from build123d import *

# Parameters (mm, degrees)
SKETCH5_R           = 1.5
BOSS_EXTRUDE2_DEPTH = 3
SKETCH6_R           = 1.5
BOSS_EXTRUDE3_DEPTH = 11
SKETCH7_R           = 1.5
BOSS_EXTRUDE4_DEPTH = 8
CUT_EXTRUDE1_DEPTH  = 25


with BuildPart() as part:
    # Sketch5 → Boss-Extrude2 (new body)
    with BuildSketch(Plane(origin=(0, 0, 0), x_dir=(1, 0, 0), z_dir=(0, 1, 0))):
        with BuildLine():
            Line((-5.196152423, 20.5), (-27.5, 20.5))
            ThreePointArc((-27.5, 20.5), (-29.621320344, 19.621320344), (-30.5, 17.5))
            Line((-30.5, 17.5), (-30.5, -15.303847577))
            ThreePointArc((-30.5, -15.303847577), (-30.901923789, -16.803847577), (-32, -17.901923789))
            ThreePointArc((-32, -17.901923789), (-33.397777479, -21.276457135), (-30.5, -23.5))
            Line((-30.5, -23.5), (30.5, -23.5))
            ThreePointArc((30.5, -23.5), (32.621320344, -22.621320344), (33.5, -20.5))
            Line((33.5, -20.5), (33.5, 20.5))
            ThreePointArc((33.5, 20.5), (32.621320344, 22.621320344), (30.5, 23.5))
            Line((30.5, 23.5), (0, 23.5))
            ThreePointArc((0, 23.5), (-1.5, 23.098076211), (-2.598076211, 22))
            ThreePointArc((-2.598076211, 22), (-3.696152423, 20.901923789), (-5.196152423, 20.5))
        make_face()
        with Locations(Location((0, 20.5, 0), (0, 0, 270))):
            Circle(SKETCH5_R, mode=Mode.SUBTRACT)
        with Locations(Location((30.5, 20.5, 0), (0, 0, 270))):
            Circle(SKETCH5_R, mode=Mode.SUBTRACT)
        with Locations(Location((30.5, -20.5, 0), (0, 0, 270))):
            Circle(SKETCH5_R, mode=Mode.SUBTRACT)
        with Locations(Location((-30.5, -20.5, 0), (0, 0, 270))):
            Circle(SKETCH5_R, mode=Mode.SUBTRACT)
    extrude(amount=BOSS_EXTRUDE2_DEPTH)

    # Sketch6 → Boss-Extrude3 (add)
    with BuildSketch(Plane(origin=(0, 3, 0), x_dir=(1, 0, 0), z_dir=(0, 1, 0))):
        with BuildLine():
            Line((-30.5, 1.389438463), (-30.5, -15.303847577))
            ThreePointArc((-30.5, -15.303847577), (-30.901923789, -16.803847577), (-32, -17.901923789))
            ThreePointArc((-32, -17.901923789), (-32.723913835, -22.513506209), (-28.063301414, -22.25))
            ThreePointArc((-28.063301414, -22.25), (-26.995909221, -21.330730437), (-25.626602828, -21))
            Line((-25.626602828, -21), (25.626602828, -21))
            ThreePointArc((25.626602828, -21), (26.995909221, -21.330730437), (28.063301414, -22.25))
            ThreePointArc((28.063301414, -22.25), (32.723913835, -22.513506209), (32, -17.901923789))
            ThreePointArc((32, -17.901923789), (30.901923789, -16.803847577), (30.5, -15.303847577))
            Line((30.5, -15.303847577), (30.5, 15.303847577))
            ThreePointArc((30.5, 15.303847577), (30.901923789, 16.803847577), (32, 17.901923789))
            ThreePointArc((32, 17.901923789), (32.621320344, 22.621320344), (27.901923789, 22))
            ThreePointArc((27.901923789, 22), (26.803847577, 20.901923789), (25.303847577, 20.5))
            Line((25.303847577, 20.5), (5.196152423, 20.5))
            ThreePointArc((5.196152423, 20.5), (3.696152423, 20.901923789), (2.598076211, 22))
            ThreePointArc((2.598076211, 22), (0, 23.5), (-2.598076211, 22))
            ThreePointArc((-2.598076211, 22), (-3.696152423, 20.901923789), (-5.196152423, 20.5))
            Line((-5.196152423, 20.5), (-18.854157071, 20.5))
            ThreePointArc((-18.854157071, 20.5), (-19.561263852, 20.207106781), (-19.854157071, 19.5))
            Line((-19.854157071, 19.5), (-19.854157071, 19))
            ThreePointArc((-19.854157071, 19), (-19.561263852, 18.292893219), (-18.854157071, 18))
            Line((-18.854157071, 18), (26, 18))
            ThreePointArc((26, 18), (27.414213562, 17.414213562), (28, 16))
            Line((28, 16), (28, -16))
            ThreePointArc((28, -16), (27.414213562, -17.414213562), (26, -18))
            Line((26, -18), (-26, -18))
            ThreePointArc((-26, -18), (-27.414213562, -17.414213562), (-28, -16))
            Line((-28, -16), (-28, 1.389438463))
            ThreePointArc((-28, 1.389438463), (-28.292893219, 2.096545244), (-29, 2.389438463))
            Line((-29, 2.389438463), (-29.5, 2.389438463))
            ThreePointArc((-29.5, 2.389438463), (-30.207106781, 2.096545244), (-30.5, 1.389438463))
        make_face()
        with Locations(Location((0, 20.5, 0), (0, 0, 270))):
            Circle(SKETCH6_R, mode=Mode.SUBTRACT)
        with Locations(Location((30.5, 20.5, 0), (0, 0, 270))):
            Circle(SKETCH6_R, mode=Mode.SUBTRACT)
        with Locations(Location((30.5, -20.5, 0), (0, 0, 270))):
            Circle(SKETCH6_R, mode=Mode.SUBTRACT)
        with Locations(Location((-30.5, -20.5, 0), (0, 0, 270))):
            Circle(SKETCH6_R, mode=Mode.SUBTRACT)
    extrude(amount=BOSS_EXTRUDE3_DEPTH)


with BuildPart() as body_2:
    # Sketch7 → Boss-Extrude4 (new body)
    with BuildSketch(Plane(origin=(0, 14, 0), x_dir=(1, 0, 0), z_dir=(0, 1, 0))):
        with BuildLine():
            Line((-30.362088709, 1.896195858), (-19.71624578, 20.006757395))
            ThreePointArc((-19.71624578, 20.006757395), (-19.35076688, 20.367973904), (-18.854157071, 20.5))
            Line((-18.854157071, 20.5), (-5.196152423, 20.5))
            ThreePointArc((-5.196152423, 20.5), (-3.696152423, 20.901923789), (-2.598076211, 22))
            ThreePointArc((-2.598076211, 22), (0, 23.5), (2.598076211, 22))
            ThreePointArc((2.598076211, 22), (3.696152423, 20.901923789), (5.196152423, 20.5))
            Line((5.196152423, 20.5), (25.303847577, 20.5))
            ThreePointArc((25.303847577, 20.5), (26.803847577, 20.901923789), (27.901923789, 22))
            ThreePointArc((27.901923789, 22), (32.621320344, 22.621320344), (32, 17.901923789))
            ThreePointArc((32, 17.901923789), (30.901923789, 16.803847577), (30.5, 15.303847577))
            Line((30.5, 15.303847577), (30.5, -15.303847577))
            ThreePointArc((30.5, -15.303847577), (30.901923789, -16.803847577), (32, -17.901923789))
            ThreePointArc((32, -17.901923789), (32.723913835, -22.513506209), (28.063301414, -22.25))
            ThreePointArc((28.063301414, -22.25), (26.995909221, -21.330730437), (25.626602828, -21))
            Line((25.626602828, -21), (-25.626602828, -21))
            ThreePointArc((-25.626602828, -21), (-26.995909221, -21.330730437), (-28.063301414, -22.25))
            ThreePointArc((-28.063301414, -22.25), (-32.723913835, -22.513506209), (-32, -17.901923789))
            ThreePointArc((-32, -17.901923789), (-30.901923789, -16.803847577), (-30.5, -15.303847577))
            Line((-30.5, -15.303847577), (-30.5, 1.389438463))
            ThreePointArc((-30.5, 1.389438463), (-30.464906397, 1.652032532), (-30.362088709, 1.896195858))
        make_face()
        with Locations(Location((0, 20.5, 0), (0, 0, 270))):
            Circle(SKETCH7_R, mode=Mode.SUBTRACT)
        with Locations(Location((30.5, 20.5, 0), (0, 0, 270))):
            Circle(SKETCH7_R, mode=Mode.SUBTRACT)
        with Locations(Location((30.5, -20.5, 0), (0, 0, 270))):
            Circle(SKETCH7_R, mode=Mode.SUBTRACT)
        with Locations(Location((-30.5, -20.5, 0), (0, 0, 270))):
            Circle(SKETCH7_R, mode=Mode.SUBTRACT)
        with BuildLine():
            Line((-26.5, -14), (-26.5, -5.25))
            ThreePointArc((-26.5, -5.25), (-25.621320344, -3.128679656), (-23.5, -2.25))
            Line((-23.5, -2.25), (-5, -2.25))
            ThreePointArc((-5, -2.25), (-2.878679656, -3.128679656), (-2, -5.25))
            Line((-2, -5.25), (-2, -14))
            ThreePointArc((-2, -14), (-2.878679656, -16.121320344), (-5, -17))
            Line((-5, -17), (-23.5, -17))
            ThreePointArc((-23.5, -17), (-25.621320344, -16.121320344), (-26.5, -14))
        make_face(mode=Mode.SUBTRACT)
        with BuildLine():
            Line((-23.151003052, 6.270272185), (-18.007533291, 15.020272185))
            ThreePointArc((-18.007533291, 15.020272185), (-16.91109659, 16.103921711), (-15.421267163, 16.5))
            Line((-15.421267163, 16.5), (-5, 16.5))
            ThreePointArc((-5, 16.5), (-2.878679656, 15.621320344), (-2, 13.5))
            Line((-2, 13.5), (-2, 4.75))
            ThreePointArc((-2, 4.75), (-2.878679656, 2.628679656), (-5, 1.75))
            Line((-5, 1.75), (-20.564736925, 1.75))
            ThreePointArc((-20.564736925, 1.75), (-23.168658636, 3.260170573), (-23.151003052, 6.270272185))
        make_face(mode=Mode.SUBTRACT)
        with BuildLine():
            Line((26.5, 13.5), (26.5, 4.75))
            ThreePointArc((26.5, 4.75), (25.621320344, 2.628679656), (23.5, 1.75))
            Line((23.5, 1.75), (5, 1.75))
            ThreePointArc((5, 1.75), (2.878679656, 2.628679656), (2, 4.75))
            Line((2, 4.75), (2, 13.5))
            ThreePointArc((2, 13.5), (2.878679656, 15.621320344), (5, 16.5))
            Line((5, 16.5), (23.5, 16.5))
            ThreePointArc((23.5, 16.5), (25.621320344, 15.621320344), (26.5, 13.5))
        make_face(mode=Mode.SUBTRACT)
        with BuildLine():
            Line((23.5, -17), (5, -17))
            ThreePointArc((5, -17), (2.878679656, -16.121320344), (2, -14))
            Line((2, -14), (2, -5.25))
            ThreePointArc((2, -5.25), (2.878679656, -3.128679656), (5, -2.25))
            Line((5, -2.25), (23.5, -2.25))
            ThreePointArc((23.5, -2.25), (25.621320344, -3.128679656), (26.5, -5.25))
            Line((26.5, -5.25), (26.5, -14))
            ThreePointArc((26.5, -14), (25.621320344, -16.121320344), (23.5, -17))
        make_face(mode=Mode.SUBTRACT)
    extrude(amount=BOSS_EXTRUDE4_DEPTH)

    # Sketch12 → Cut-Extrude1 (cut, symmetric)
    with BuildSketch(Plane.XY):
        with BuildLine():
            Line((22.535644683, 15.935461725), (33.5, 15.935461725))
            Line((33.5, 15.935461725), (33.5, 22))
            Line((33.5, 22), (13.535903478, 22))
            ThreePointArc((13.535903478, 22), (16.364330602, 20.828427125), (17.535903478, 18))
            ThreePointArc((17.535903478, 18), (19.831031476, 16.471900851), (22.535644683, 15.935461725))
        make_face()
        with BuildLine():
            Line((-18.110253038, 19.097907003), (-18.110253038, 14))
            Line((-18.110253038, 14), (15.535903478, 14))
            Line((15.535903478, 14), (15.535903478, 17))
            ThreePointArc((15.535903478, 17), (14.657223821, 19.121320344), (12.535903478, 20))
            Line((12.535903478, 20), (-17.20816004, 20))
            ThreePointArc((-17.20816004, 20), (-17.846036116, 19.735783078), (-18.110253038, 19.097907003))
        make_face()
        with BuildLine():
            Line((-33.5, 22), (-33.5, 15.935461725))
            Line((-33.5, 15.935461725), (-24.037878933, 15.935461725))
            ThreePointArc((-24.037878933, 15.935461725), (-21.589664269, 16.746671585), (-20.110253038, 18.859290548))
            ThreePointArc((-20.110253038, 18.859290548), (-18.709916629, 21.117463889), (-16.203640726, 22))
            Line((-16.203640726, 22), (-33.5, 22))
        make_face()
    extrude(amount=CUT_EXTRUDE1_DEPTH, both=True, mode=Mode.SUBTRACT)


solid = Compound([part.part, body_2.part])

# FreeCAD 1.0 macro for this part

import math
import FreeCAD as App
import Part
import Sketcher

V = App.Vector
Q = App.Units.Quantity

doc = App.newDocument("Part")
body = doc.addObject("PartDesign::Body", "Body")

# Sketch on XZ plane
sketch1 = doc.addObject("Sketcher::SketchObject", "Sketch")
body.addObject(sketch1)
sketch1.AttachmentSupport = (doc.XZ_Plane, [""])
sketch1.MapMode = "FlatFace"
sketch1.addGeometry(Part.LineSegment(V(-5.196152, -20.5, 0), V(-27.5, -20.5, 0)), False)
sketch1.addGeometry(Part.ArcOfCircle(Part.Circle(V(-27.5, -17.5, 0), V(0, 0, 1), 3), math.radians(180), math.radians(270)), False)
sketch1.addGeometry(Part.LineSegment(V(-30.5, -17.5, 0), V(-30.5, 15.303848, 0)), False)
sketch1.addGeometry(Part.ArcOfCircle(Part.Circle(V(-33.5, 15.303848, 0), V(0, 0, 1), 3), math.radians(0), math.radians(60)), False)
sketch1.addGeometry(Part.ArcOfCircle(Part.Circle(V(-30.5, 20.5, 0), V(0, 0, 1), 3), math.radians(90), math.radians(240)), False)
sketch1.addGeometry(Part.LineSegment(V(-30.5, 23.5, 0), V(30.5, 23.5, 0)), False)
sketch1.addGeometry(Part.ArcOfCircle(Part.Circle(V(30.5, 20.5, 0), V(0, 0, 1), 3), math.radians(0), math.radians(90)), False)
sketch1.addGeometry(Part.LineSegment(V(33.5, 20.5, 0), V(33.5, -20.5, 0)), False)
sketch1.addGeometry(Part.ArcOfCircle(Part.Circle(V(30.5, -20.5, 0), V(0, 0, 1), 3), math.radians(-90), math.radians(0)), False)
sketch1.addGeometry(Part.LineSegment(V(30.5, -23.5, 0), V(0, -23.5, 0)), False)
sketch1.addGeometry(Part.ArcOfCircle(Part.Circle(V(0, -20.5, 0), V(0, 0, 1), 3), math.radians(-150), math.radians(-90)), False)
sketch1.addGeometry(Part.ArcOfCircle(Part.Circle(V(-5.196152, -23.5, 0), V(0, 0, 1), 3), math.radians(30), math.radians(90)), False)
sketch1.addGeometry(Part.Circle(V(-30.5, 20.5, 0), V(0, 0, 1), 1.5), False)
sketch1.addGeometry(Part.Circle(V(30.5, 20.5, 0), V(0, 0, 1), 1.5), False)
sketch1.addGeometry(Part.Circle(V(0, -20.5, 0), V(0, 0, 1), 1.5), False)
sketch1.addGeometry(Part.Circle(V(30.5, -20.5, 0), V(0, 0, 1), 1.5), False)
sketch1.addConstraint(Sketcher.Constraint("Tangent", 0, 2, 1, 2))
sketch1.addConstraint(Sketcher.Constraint("Tangent", 1, 1, 2, 1))
sketch1.addConstraint(Sketcher.Constraint("Tangent", 2, 2, 3, 1))
sketch1.addConstraint(Sketcher.Constraint("Tangent", 3, 2, 4, 2))
sketch1.addConstraint(Sketcher.Constraint("Tangent", 4, 1, 5, 1))
sketch1.addConstraint(Sketcher.Constraint("Tangent", 5, 2, 6, 2))
sketch1.addConstraint(Sketcher.Constraint("Tangent", 6, 1, 7, 1))
sketch1.addConstraint(Sketcher.Constraint("Tangent", 7, 2, 8, 2))
sketch1.addConstraint(Sketcher.Constraint("Tangent", 8, 1, 9, 1))
sketch1.addConstraint(Sketcher.Constraint("Tangent", 9, 2, 10, 2))
sketch1.addConstraint(Sketcher.Constraint("Tangent", 10, 1, 11, 1))
sketch1.addConstraint(Sketcher.Constraint("Tangent", 11, 2, 0, 1))
sketch1.addConstraint(Sketcher.Constraint("Horizontal", 0))
sketch1.addConstraint(Sketcher.Constraint("Vertical", 2))
sketch1.addConstraint(Sketcher.Constraint("Horizontal", 5))
sketch1.addConstraint(Sketcher.Constraint("Vertical", 7))
sketch1.addConstraint(Sketcher.Constraint("Horizontal", 9))
sketch1.addConstraint(Sketcher.Constraint("Coincident", 12, 3, 4, 3))
sketch1.addConstraint(Sketcher.Constraint("Coincident", 13, 3, 6, 3))
sketch1.addConstraint(Sketcher.Constraint("Coincident", 14, 3, 10, 3))
sketch1.addConstraint(Sketcher.Constraint("Coincident", 15, 3, 8, 3))
sketch1.addConstraint(Sketcher.Constraint("Equal", 1, 3))
sketch1.addConstraint(Sketcher.Constraint("Equal", 3, 4))
sketch1.addConstraint(Sketcher.Constraint("Equal", 4, 6))
sketch1.addConstraint(Sketcher.Constraint("Equal", 6, 8))
sketch1.addConstraint(Sketcher.Constraint("Equal", 8, 10))
sketch1.addConstraint(Sketcher.Constraint("Equal", 10, 11))
sketch1.addConstraint(Sketcher.Constraint("Equal", 12, 13))
sketch1.addConstraint(Sketcher.Constraint("Equal", 13, 14))
sketch1.addConstraint(Sketcher.Constraint("Equal", 14, 15))
sketch1.addConstraint(Sketcher.Constraint("Symmetric", 4, 3, 8, 3, -1, 1))
sketch1.addConstraint(Sketcher.Constraint("PointOnObject", 10, 3, -2))
sketch1.addConstraint(Sketcher.Constraint("Horizontal", 15, 3, 0, 2))
sketch1.addConstraint(Sketcher.Constraint("Vertical", 12, 3, 1, 1))
sketch1.addConstraint(Sketcher.Constraint("Diameter", 12, Q("3 mm")))
sketch1.addConstraint(Sketcher.Constraint("Radius", 1, Q("3 mm")))
sketch1.addConstraint(Sketcher.Constraint("DistanceX", 5, 1, 5, 2, Q("61 mm")))
sketch1.addConstraint(Sketcher.Constraint("DistanceY", 7, 2, 7, 1, Q("41 mm")))
pad1 = doc.addObject("PartDesign::Pad", "Pad")
body.addObject(pad1)
pad1.Profile = sketch1
pad1.Length = 3
pad1.Reversed = True

# Sketch on XZ plane
sketch2 = doc.addObject("Sketcher::SketchObject", "Sketch001")
body.addObject(sketch2)
sketch2.AttachmentSupport = (doc.XZ_Plane, [""])
sketch2.MapMode = "FlatFace"
sketch2.AttachmentOffset = App.Placement(V(0, 0, -3), App.Rotation())
sketch2.addGeometry(Part.LineSegment(V(-30.5, -1.389438, 0), V(-30.5, 15.303848, 0)), False)
sketch2.addGeometry(Part.ArcOfCircle(Part.Circle(V(-33.5, 15.303848, 0), V(0, 0, 1), 3), math.radians(0), math.radians(60)), False)
sketch2.addGeometry(Part.ArcOfCircle(Part.Circle(V(-30.5, 20.5, 0), V(0, 0, 1), 3), math.radians(35.685335), math.radians(240)), False)
sketch2.addGeometry(Part.ArcOfCircle(Part.Circle(V(-25.626603, 24, 0), V(0, 0, 1), 3), math.radians(-144.314665), math.radians(-90)), False)
sketch2.addGeometry(Part.LineSegment(V(-25.626603, 21, 0), V(25.626603, 21, 0)), False)
sketch2.addGeometry(Part.ArcOfCircle(Part.Circle(V(25.626603, 24, 0), V(0, 0, 1), 3), math.radians(-90), math.radians(-35.685335)), False)
sketch2.addGeometry(Part.ArcOfCircle(Part.Circle(V(30.5, 20.5, 0), V(0, 0, 1), 3), math.radians(-60), math.radians(144.314665)), False)
sketch2.addGeometry(Part.ArcOfCircle(Part.Circle(V(33.5, 15.303848, 0), V(0, 0, 1), 3), math.radians(120), math.radians(180)), False)
sketch2.addGeometry(Part.LineSegment(V(30.5, 15.303848, 0), V(30.5, -15.303848, 0)), False)
sketch2.addGeometry(Part.ArcOfCircle(Part.Circle(V(33.5, -15.303848, 0), V(0, 0, 1), 3), math.radians(-180), math.radians(-120)), False)
sketch2.addGeometry(Part.ArcOfCircle(Part.Circle(V(30.5, -20.5, 0), V(0, 0, 1), 3), math.radians(-150), math.radians(60)), False)
sketch2.addGeometry(Part.ArcOfCircle(Part.Circle(V(25.303848, -23.5, 0), V(0, 0, 1), 3), math.radians(30), math.radians(90)), False)
sketch2.addGeometry(Part.LineSegment(V(25.303848, -20.5, 0), V(5.196152, -20.5, 0)), False)
sketch2.addGeometry(Part.ArcOfCircle(Part.Circle(V(5.196152, -23.5, 0), V(0, 0, 1), 3), math.radians(90), math.radians(150)), False)
sketch2.addGeometry(Part.ArcOfCircle(Part.Circle(V(0, -20.5, 0), V(0, 0, 1), 3), math.radians(-150), math.radians(-30)), False)
sketch2.addGeometry(Part.ArcOfCircle(Part.Circle(V(-5.196152, -23.5, 0), V(0, 0, 1), 3), math.radians(30), math.radians(90)), False)
sketch2.addGeometry(Part.LineSegment(V(-5.196152, -20.5, 0), V(-18.854157, -20.5, 0)), False)
sketch2.addGeometry(Part.ArcOfCircle(Part.Circle(V(-18.854157, -19.5, 0), V(0, 0, 1), 1), math.radians(-180), math.radians(-90)), False)
sketch2.addGeometry(Part.LineSegment(V(-19.854157, -19.5, 0), V(-19.854157, -19, 0)), False)
sketch2.addGeometry(Part.ArcOfCircle(Part.Circle(V(-18.854157, -19, 0), V(0, 0, 1), 1), math.radians(90), math.radians(180)), False)
sketch2.addGeometry(Part.LineSegment(V(-18.854157, -18, 0), V(26, -18, 0)), False)
sketch2.addGeometry(Part.ArcOfCircle(Part.Circle(V(26, -16, 0), V(0, 0, 1), 2), math.radians(-90), math.radians(0)), False)
sketch2.addGeometry(Part.LineSegment(V(28, -16, 0), V(28, 16, 0)), False)
sketch2.addGeometry(Part.ArcOfCircle(Part.Circle(V(26, 16, 0), V(0, 0, 1), 2), math.radians(0), math.radians(90)), False)
sketch2.addGeometry(Part.LineSegment(V(26, 18, 0), V(-26, 18, 0)), False)
sketch2.addGeometry(Part.ArcOfCircle(Part.Circle(V(-26, 16, 0), V(0, 0, 1), 2), math.radians(90), math.radians(180)), False)
sketch2.addGeometry(Part.LineSegment(V(-28, 16, 0), V(-28, -1.389438, 0)), False)
sketch2.addGeometry(Part.ArcOfCircle(Part.Circle(V(-29, -1.389438, 0), V(0, 0, 1), 1), math.radians(-90), math.radians(0)), False)
sketch2.addGeometry(Part.LineSegment(V(-29, -2.389438, 0), V(-29.5, -2.389438, 0)), False)
sketch2.addGeometry(Part.ArcOfCircle(Part.Circle(V(-29.5, -1.389438, 0), V(0, 0, 1), 1), math.radians(-180), math.radians(-90)), False)
sketch2.addGeometry(Part.Circle(V(-30.5, 20.5, 0), V(0, 0, 1), 1.5), False)
sketch2.addGeometry(Part.Circle(V(30.5, 20.5, 0), V(0, 0, 1), 1.5), False)
sketch2.addGeometry(Part.Circle(V(0, -20.5, 0), V(0, 0, 1), 1.5), False)
sketch2.addGeometry(Part.Circle(V(30.5, -20.5, 0), V(0, 0, 1), 1.5), False)
sketch2.addConstraint(Sketcher.Constraint("Tangent", 0, 2, 1, 1))
sketch2.addConstraint(Sketcher.Constraint("Tangent", 1, 2, 2, 2))
sketch2.addConstraint(Sketcher.Constraint("Tangent", 2, 1, 3, 1))
sketch2.addConstraint(Sketcher.Constraint("Tangent", 3, 2, 4, 1))
sketch2.addConstraint(Sketcher.Constraint("Tangent", 4, 2, 5, 1))
sketch2.addConstraint(Sketcher.Constraint("Tangent", 5, 2, 6, 2))
sketch2.addConstraint(Sketcher.Constraint("Tangent", 6, 1, 7, 1))
sketch2.addConstraint(Sketcher.Constraint("Tangent", 7, 2, 8, 1))
sketch2.addConstraint(Sketcher.Constraint("Tangent", 8, 2, 9, 1))
sketch2.addConstraint(Sketcher.Constraint("Tangent", 9, 2, 10, 2))
sketch2.addConstraint(Sketcher.Constraint("Tangent", 10, 1, 11, 1))
sketch2.addConstraint(Sketcher.Constraint("Tangent", 11, 2, 12, 1))
sketch2.addConstraint(Sketcher.Constraint("Tangent", 12, 2, 13, 1))
sketch2.addConstraint(Sketcher.Constraint("Tangent", 13, 2, 14, 2))
sketch2.addConstraint(Sketcher.Constraint("Tangent", 14, 1, 15, 1))
sketch2.addConstraint(Sketcher.Constraint("Tangent", 15, 2, 16, 1))
sketch2.addConstraint(Sketcher.Constraint("Tangent", 16, 2, 17, 2))
sketch2.addConstraint(Sketcher.Constraint("Tangent", 17, 1, 18, 1))
sketch2.addConstraint(Sketcher.Constraint("Tangent", 18, 2, 19, 2))
sketch2.addConstraint(Sketcher.Constraint("Tangent", 19, 1, 20, 1))
sketch2.addConstraint(Sketcher.Constraint("Tangent", 20, 2, 21, 1))
sketch2.addConstraint(Sketcher.Constraint("Tangent", 21, 2, 22, 1))
sketch2.addConstraint(Sketcher.Constraint("Tangent", 22, 2, 23, 1))
sketch2.addConstraint(Sketcher.Constraint("Tangent", 23, 2, 24, 1))
sketch2.addConstraint(Sketcher.Constraint("Tangent", 24, 2, 25, 1))
sketch2.addConstraint(Sketcher.Constraint("Tangent", 25, 2, 26, 1))
sketch2.addConstraint(Sketcher.Constraint("Tangent", 26, 2, 27, 2))
sketch2.addConstraint(Sketcher.Constraint("Tangent", 27, 1, 28, 1))
sketch2.addConstraint(Sketcher.Constraint("Tangent", 28, 2, 29, 2))
sketch2.addConstraint(Sketcher.Constraint("Tangent", 29, 1, 0, 1))
sketch2.addConstraint(Sketcher.Constraint("Vertical", 0))
sketch2.addConstraint(Sketcher.Constraint("Horizontal", 4))
sketch2.addConstraint(Sketcher.Constraint("Vertical", 8))
sketch2.addConstraint(Sketcher.Constraint("Horizontal", 12))
sketch2.addConstraint(Sketcher.Constraint("Horizontal", 16))
sketch2.addConstraint(Sketcher.Constraint("Vertical", 18))
sketch2.addConstraint(Sketcher.Constraint("Horizontal", 20))
sketch2.addConstraint(Sketcher.Constraint("Vertical", 22))
sketch2.addConstraint(Sketcher.Constraint("Horizontal", 24))
sketch2.addConstraint(Sketcher.Constraint("Vertical", 26))
sketch2.addConstraint(Sketcher.Constraint("Horizontal", 28))
sketch2.addConstraint(Sketcher.Constraint("Coincident", 30, 3, 2, 3))
sketch2.addConstraint(Sketcher.Constraint("Coincident", 31, 3, 6, 3))
sketch2.addConstraint(Sketcher.Constraint("Coincident", 32, 3, 14, 3))
sketch2.addConstraint(Sketcher.Constraint("Coincident", 33, 3, 10, 3))
sketch2.addConstraint(Sketcher.Constraint("Equal", 1, 2))
sketch2.addConstraint(Sketcher.Constraint("Equal", 2, 3))
sketch2.addConstraint(Sketcher.Constraint("Equal", 3, 5))
sketch2.addConstraint(Sketcher.Constraint("Equal", 5, 6))
sketch2.addConstraint(Sketcher.Constraint("Equal", 6, 7))
sketch2.addConstraint(Sketcher.Constraint("Equal", 7, 9))
sketch2.addConstraint(Sketcher.Constraint("Equal", 9, 10))
sketch2.addConstraint(Sketcher.Constraint("Equal", 10, 11))
sketch2.addConstraint(Sketcher.Constraint("Equal", 11, 13))
sketch2.addConstraint(Sketcher.Constraint("Equal", 13, 14))
sketch2.addConstraint(Sketcher.Constraint("Equal", 14, 15))
sketch2.addConstraint(Sketcher.Constraint("Equal", 17, 19))
sketch2.addConstraint(Sketcher.Constraint("Equal", 21, 23))
sketch2.addConstraint(Sketcher.Constraint("Equal", 23, 25))
sketch2.addConstraint(Sketcher.Constraint("Equal", 19, 27))
sketch2.addConstraint(Sketcher.Constraint("Equal", 27, 29))
sketch2.addConstraint(Sketcher.Constraint("Equal", 30, 31))
sketch2.addConstraint(Sketcher.Constraint("Equal", 31, 32))
sketch2.addConstraint(Sketcher.Constraint("Equal", 32, 33))
sketch2.addConstraint(Sketcher.Constraint("Symmetric", 1, 3, 9, 3, -1, 1))
sketch2.addConstraint(Sketcher.Constraint("Symmetric", 21, 3, 25, 3, -1, 1))
sketch2.addConstraint(Sketcher.Constraint("Symmetric", 2, 3, 6, 3, -2))
sketch2.addConstraint(Sketcher.Constraint("Symmetric", 13, 3, 15, 3, -2))
sketch2.addConstraint(Sketcher.Constraint("Horizontal", 10, 3, 14, 3))
sketch2.addConstraint(Sketcher.Constraint("Horizontal", 33, 3, 11, 2))
sketch2.addConstraint(Sketcher.Constraint("Vertical", 6, 3, 10, 3))
sketch2.addConstraint(Sketcher.Constraint("Vertical", 30, 3, 0, 2))
sketch2.addConstraint(Sketcher.Constraint("Equal", 28, 18))
sketch2.addConstraint(Sketcher.Constraint("Diameter", 30, Q("3 mm")))
sketch2.addConstraint(Sketcher.Constraint("Radius", 1, Q("3 mm")))
sketch2.addConstraint(Sketcher.Constraint("Radius", 17, Q("1 mm")))
sketch2.addConstraint(Sketcher.Constraint("Radius", 21, Q("2 mm")))
sketch2.addConstraint(Sketcher.Constraint("DistanceX", 24, 2, 24, 1, Q("52 mm")))
sketch2.addConstraint(Sketcher.Constraint("DistanceY", 22, 1, 22, 2, Q("32 mm")))
sketch2.addConstraint(Sketcher.Constraint("DistanceX", 28, 2, 28, 1, Q("0.5 mm")))
sketch2.addConstraint(Sketcher.Constraint("DistanceY", -1, 1, 3, 3, Q("24 mm")))
sketch2.addConstraint(Sketcher.Constraint("DistanceY", 26, 2, 26, 1, Q("17.389438 mm")))
sketch2.addConstraint(Sketcher.Constraint("DistanceX", 16, 2, 16, 1, Q("13.658005 mm")))
pad2 = doc.addObject("PartDesign::Pad", "Pad001")
body.addObject(pad2)
pad2.Profile = sketch2
pad2.Length = 11
pad2.Reversed = True
body2 = doc.addObject("PartDesign::Body", "Body001")

# Sketch on XZ plane
sketch3 = doc.addObject("Sketcher::SketchObject", "Sketch002")
body2.addObject(sketch3)
sketch3.AttachmentSupport = (doc.getObject("XZ_Plane001"), [""])
sketch3.MapMode = "FlatFace"
sketch3.AttachmentOffset = App.Placement(V(0, 0, -14), App.Rotation())
sketch3.addGeometry(Part.LineSegment(V(-19.716246, -20.006757, 0), V(-30.362089, -1.896196, 0)), False)
sketch3.addGeometry(Part.ArcOfCircle(Part.Circle(V(-29.5, -1.389438, 0), V(0, 0, 1), 1), math.radians(180), math.radians(210.448082)), False)
sketch3.addGeometry(Part.LineSegment(V(-30.5, -1.389438, 0), V(-30.5, 15.303848, 0)), False)
sketch3.addGeometry(Part.ArcOfCircle(Part.Circle(V(-33.5, 15.303848, 0), V(0, 0, 1), 3), math.radians(0), math.radians(60)), False)
sketch3.addGeometry(Part.ArcOfCircle(Part.Circle(V(-30.5, 20.5, 0), V(0, 0, 1), 3), math.radians(35.685335), math.radians(240)), False)
sketch3.addGeometry(Part.ArcOfCircle(Part.Circle(V(-25.626603, 24, 0), V(0, 0, 1), 3), math.radians(-144.314665), math.radians(-90)), False)
sketch3.addGeometry(Part.LineSegment(V(-25.626603, 21, 0), V(25.626603, 21, 0)), False)
sketch3.addGeometry(Part.ArcOfCircle(Part.Circle(V(25.626603, 24, 0), V(0, 0, 1), 3), math.radians(-90), math.radians(-35.685335)), False)
sketch3.addGeometry(Part.ArcOfCircle(Part.Circle(V(30.5, 20.5, 0), V(0, 0, 1), 3), math.radians(-60), math.radians(144.314665)), False)
sketch3.addGeometry(Part.ArcOfCircle(Part.Circle(V(33.5, 15.303848, 0), V(0, 0, 1), 3), math.radians(120), math.radians(180)), False)
sketch3.addGeometry(Part.LineSegment(V(30.5, 15.303848, 0), V(30.5, -15.303848, 0)), False)
sketch3.addGeometry(Part.ArcOfCircle(Part.Circle(V(33.5, -15.303848, 0), V(0, 0, 1), 3), math.radians(-180), math.radians(-120)), False)
sketch3.addGeometry(Part.ArcOfCircle(Part.Circle(V(30.5, -20.5, 0), V(0, 0, 1), 3), math.radians(-150), math.radians(60)), False)
sketch3.addGeometry(Part.ArcOfCircle(Part.Circle(V(25.303848, -23.5, 0), V(0, 0, 1), 3), math.radians(30), math.radians(90)), False)
sketch3.addGeometry(Part.LineSegment(V(25.303848, -20.5, 0), V(5.196152, -20.5, 0)), False)
sketch3.addGeometry(Part.ArcOfCircle(Part.Circle(V(5.196152, -23.5, 0), V(0, 0, 1), 3), math.radians(90), math.radians(150)), False)
sketch3.addGeometry(Part.ArcOfCircle(Part.Circle(V(0, -20.5, 0), V(0, 0, 1), 3), math.radians(-150), math.radians(-30)), False)
sketch3.addGeometry(Part.ArcOfCircle(Part.Circle(V(-5.196152, -23.5, 0), V(0, 0, 1), 3), math.radians(30), math.radians(90)), False)
sketch3.addGeometry(Part.LineSegment(V(-5.196152, -20.5, 0), V(-18.854157, -20.5, 0)), False)
sketch3.addGeometry(Part.ArcOfCircle(Part.Circle(V(-18.854157, -19.5, 0), V(0, 0, 1), 1), math.radians(-149.551918), math.radians(-90)), False)
sketch3.addGeometry(Part.Circle(V(30.5, 20.5, 0), V(0, 0, 1), 1.5), False)
sketch3.addGeometry(Part.LineSegment(V(23.5, 17, 0), V(5, 17, 0)), False)
sketch3.addGeometry(Part.ArcOfCircle(Part.Circle(V(5, 14, 0), V(0, 0, 1), 3), math.radians(90), math.radians(180)), False)
sketch3.addGeometry(Part.LineSegment(V(2, 14, 0), V(2, 5.25, 0)), False)
sketch3.addGeometry(Part.ArcOfCircle(Part.Circle(V(5, 5.25, 0), V(0, 0, 1), 3), math.radians(180), math.radians(270)), False)
sketch3.addGeometry(Part.LineSegment(V(5, 2.25, 0), V(23.5, 2.25, 0)), False)
sketch3.addGeometry(Part.ArcOfCircle(Part.Circle(V(23.5, 5.25, 0), V(0, 0, 1), 3), math.radians(-90), math.radians(0)), False)
sketch3.addGeometry(Part.LineSegment(V(26.5, 5.25, 0), V(26.5, 14, 0)), False)
sketch3.addGeometry(Part.ArcOfCircle(Part.Circle(V(23.5, 14, 0), V(0, 0, 1), 3), math.radians(0), math.radians(90)), False)
sketch3.addGeometry(Part.Circle(V(-30.5, 20.5, 0), V(0, 0, 1), 1.5), False)
sketch3.addGeometry(Part.LineSegment(V(-26.5, 14, 0), V(-26.5, 5.25, 0)), False)
sketch3.addGeometry(Part.ArcOfCircle(Part.Circle(V(-23.5, 5.25, 0), V(0, 0, 1), 3), math.radians(180), math.radians(270)), False)
sketch3.addGeometry(Part.LineSegment(V(-23.5, 2.25, 0), V(-5, 2.25, 0)), False)
sketch3.addGeometry(Part.ArcOfCircle(Part.Circle(V(-5, 5.25, 0), V(0, 0, 1), 3), math.radians(-90), math.radians(0)), False)
sketch3.addGeometry(Part.LineSegment(V(-2, 5.25, 0), V(-2, 14, 0)), False)
sketch3.addGeometry(Part.ArcOfCircle(Part.Circle(V(-5, 14, 0), V(0, 0, 1), 3), math.radians(0), math.radians(90)), False)
sketch3.addGeometry(Part.LineSegment(V(-5, 17, 0), V(-23.5, 17, 0)), False)
sketch3.addGeometry(Part.ArcOfCircle(Part.Circle(V(-23.5, 14, 0), V(0, 0, 1), 3), math.radians(90), math.radians(180)), False)
sketch3.addGeometry(Part.LineSegment(V(26.5, -13.5, 0), V(26.5, -4.75, 0)), False)
sketch3.addGeometry(Part.ArcOfCircle(Part.Circle(V(23.5, -4.75, 0), V(0, 0, 1), 3), math.radians(0), math.radians(90)), False)
sketch3.addGeometry(Part.LineSegment(V(23.5, -1.75, 0), V(5, -1.75, 0)), False)
sketch3.addGeometry(Part.ArcOfCircle(Part.Circle(V(5, -4.75, 0), V(0, 0, 1), 3), math.radians(90), math.radians(180)), False)
sketch3.addGeometry(Part.LineSegment(V(2, -4.75, 0), V(2, -13.5, 0)), False)
sketch3.addGeometry(Part.ArcOfCircle(Part.Circle(V(5, -13.5, 0), V(0, 0, 1), 3), math.radians(180), math.radians(270)), False)
sketch3.addGeometry(Part.LineSegment(V(5, -16.5, 0), V(23.5, -16.5, 0)), False)
sketch3.addGeometry(Part.ArcOfCircle(Part.Circle(V(23.5, -13.5, 0), V(0, 0, 1), 3), math.radians(-90), math.radians(0)), False)
sketch3.addGeometry(Part.Circle(V(30.5, -20.5, 0), V(0, 0, 1), 1.5), False)
sketch3.addGeometry(Part.LineSegment(V(-23.151003, -6.270272, 0), V(-18.007533, -15.020272, 0)), False)
sketch3.addGeometry(Part.ArcOfCircle(Part.Circle(V(-15.421267, -13.5, 0), V(0, 0, 1), 3), math.radians(-149.551918), math.radians(-90)), False)
sketch3.addGeometry(Part.LineSegment(V(-15.421267, -16.5, 0), V(-5, -16.5, 0)), False)
sketch3.addGeometry(Part.ArcOfCircle(Part.Circle(V(-5, -13.5, 0), V(0, 0, 1), 3), math.radians(-90), math.radians(0)), False)
sketch3.addGeometry(Part.LineSegment(V(-2, -13.5, 0), V(-2, -4.75, 0)), False)
sketch3.addGeometry(Part.ArcOfCircle(Part.Circle(V(-5, -4.75, 0), V(0, 0, 1), 3), math.radians(0), math.radians(90)), False)
sketch3.addGeometry(Part.LineSegment(V(-5, -1.75, 0), V(-20.564737, -1.75, 0)), False)
sketch3.addGeometry(Part.ArcOfCircle(Part.Circle(V(-20.564737, -4.75, 0), V(0, 0, 1), 3), math.radians(90), math.radians(210.448082)), False)
sketch3.addGeometry(Part.Circle(V(0, -20.5, 0), V(0, 0, 1), 1.5), False)
sketch3.addConstraint(Sketcher.Constraint("Tangent", 0, 2, 1, 2))
sketch3.addConstraint(Sketcher.Constraint("Tangent", 1, 1, 2, 1))
sketch3.addConstraint(Sketcher.Constraint("Tangent", 2, 2, 3, 1))
sketch3.addConstraint(Sketcher.Constraint("Tangent", 3, 2, 4, 2))
sketch3.addConstraint(Sketcher.Constraint("Tangent", 4, 1, 5, 1))
sketch3.addConstraint(Sketcher.Constraint("Tangent", 5, 2, 6, 1))
sketch3.addConstraint(Sketcher.Constraint("Tangent", 6, 2, 7, 1))
sketch3.addConstraint(Sketcher.Constraint("Tangent", 7, 2, 8, 2))
sketch3.addConstraint(Sketcher.Constraint("Tangent", 8, 1, 9, 1))
sketch3.addConstraint(Sketcher.Constraint("Tangent", 9, 2, 10, 1))
sketch3.addConstraint(Sketcher.Constraint("Tangent", 10, 2, 11, 1))
sketch3.addConstraint(Sketcher.Constraint("Tangent", 11, 2, 12, 2))
sketch3.addConstraint(Sketcher.Constraint("Tangent", 12, 1, 13, 1))
sketch3.addConstraint(Sketcher.Constraint("Tangent", 13, 2, 14, 1))
sketch3.addConstraint(Sketcher.Constraint("Tangent", 14, 2, 15, 1))
sketch3.addConstraint(Sketcher.Constraint("Tangent", 15, 2, 16, 2))
sketch3.addConstraint(Sketcher.Constraint("Tangent", 16, 1, 17, 1))
sketch3.addConstraint(Sketcher.Constraint("Tangent", 17, 2, 18, 1))
sketch3.addConstraint(Sketcher.Constraint("Tangent", 18, 2, 19, 2))
sketch3.addConstraint(Sketcher.Constraint("Tangent", 19, 1, 0, 1))
sketch3.addConstraint(Sketcher.Constraint("Tangent", 21, 2, 22, 1))
sketch3.addConstraint(Sketcher.Constraint("Tangent", 22, 2, 23, 1))
sketch3.addConstraint(Sketcher.Constraint("Tangent", 23, 2, 24, 1))
sketch3.addConstraint(Sketcher.Constraint("Tangent", 24, 2, 25, 1))
sketch3.addConstraint(Sketcher.Constraint("Tangent", 25, 2, 26, 1))
sketch3.addConstraint(Sketcher.Constraint("Tangent", 26, 2, 27, 1))
sketch3.addConstraint(Sketcher.Constraint("Tangent", 27, 2, 28, 1))
sketch3.addConstraint(Sketcher.Constraint("Tangent", 28, 2, 21, 1))
sketch3.addConstraint(Sketcher.Constraint("Tangent", 30, 2, 31, 1))
sketch3.addConstraint(Sketcher.Constraint("Tangent", 31, 2, 32, 1))
sketch3.addConstraint(Sketcher.Constraint("Tangent", 32, 2, 33, 1))
sketch3.addConstraint(Sketcher.Constraint("Tangent", 33, 2, 34, 1))
sketch3.addConstraint(Sketcher.Constraint("Tangent", 34, 2, 35, 1))
sketch3.addConstraint(Sketcher.Constraint("Tangent", 35, 2, 36, 1))
sketch3.addConstraint(Sketcher.Constraint("Tangent", 36, 2, 37, 1))
sketch3.addConstraint(Sketcher.Constraint("Tangent", 37, 2, 30, 1))
sketch3.addConstraint(Sketcher.Constraint("Tangent", 38, 2, 39, 1))
sketch3.addConstraint(Sketcher.Constraint("Tangent", 39, 2, 40, 1))
sketch3.addConstraint(Sketcher.Constraint("Tangent", 40, 2, 41, 1))
sketch3.addConstraint(Sketcher.Constraint("Tangent", 41, 2, 42, 1))
sketch3.addConstraint(Sketcher.Constraint("Tangent", 42, 2, 43, 1))
sketch3.addConstraint(Sketcher.Constraint("Tangent", 43, 2, 44, 1))
sketch3.addConstraint(Sketcher.Constraint("Tangent", 44, 2, 45, 1))
sketch3.addConstraint(Sketcher.Constraint("Tangent", 45, 2, 38, 1))
sketch3.addConstraint(Sketcher.Constraint("Tangent", 47, 2, 48, 1))
sketch3.addConstraint(Sketcher.Constraint("Tangent", 48, 2, 49, 1))
sketch3.addConstraint(Sketcher.Constraint("Tangent", 49, 2, 50, 1))
sketch3.addConstraint(Sketcher.Constraint("Tangent", 50, 2, 51, 1))
sketch3.addConstraint(Sketcher.Constraint("Tangent", 51, 2, 52, 1))
sketch3.addConstraint(Sketcher.Constraint("Tangent", 52, 2, 53, 1))
sketch3.addConstraint(Sketcher.Constraint("Tangent", 53, 2, 54, 1))
sketch3.addConstraint(Sketcher.Constraint("Tangent", 54, 2, 47, 1))
sketch3.addConstraint(Sketcher.Constraint("Vertical", 2))
sketch3.addConstraint(Sketcher.Constraint("Horizontal", 6))
sketch3.addConstraint(Sketcher.Constraint("Vertical", 10))
sketch3.addConstraint(Sketcher.Constraint("Horizontal", 14))
sketch3.addConstraint(Sketcher.Constraint("Horizontal", 18))
sketch3.addConstraint(Sketcher.Constraint("Horizontal", 21))
sketch3.addConstraint(Sketcher.Constraint("Vertical", 23))
sketch3.addConstraint(Sketcher.Constraint("Horizontal", 25))
sketch3.addConstraint(Sketcher.Constraint("Vertical", 27))
sketch3.addConstraint(Sketcher.Constraint("Vertical", 30))
sketch3.addConstraint(Sketcher.Constraint("Horizontal", 32))
sketch3.addConstraint(Sketcher.Constraint("Vertical", 34))
sketch3.addConstraint(Sketcher.Constraint("Horizontal", 36))
sketch3.addConstraint(Sketcher.Constraint("Vertical", 38))
sketch3.addConstraint(Sketcher.Constraint("Horizontal", 40))
sketch3.addConstraint(Sketcher.Constraint("Vertical", 42))
sketch3.addConstraint(Sketcher.Constraint("Horizontal", 44))
sketch3.addConstraint(Sketcher.Constraint("Horizontal", 49))
sketch3.addConstraint(Sketcher.Constraint("Vertical", 51))
sketch3.addConstraint(Sketcher.Constraint("Horizontal", 53))
sketch3.addConstraint(Sketcher.Constraint("Coincident", 20, 3, 8, 3))
sketch3.addConstraint(Sketcher.Constraint("Coincident", 29, 3, 4, 3))
sketch3.addConstraint(Sketcher.Constraint("Coincident", 46, 3, 12, 3))
sketch3.addConstraint(Sketcher.Constraint("Coincident", 55, 3, 16, 3))
sketch3.addConstraint(Sketcher.Constraint("Equal", 3, 4))
sketch3.addConstraint(Sketcher.Constraint("Equal", 4, 5))
sketch3.addConstraint(Sketcher.Constraint("Equal", 5, 7))
sketch3.addConstraint(Sketcher.Constraint("Equal", 7, 8))
sketch3.addConstraint(Sketcher.Constraint("Equal", 8, 9))
sketch3.addConstraint(Sketcher.Constraint("Equal", 9, 11))
sketch3.addConstraint(Sketcher.Constraint("Equal", 11, 12))
sketch3.addConstraint(Sketcher.Constraint("Equal", 12, 13))
sketch3.addConstraint(Sketcher.Constraint("Equal", 13, 15))
sketch3.addConstraint(Sketcher.Constraint("Equal", 15, 16))
sketch3.addConstraint(Sketcher.Constraint("Equal", 16, 17))
sketch3.addConstraint(Sketcher.Constraint("Equal", 1, 19))
sketch3.addConstraint(Sketcher.Constraint("Equal", 17, 22))
sketch3.addConstraint(Sketcher.Constraint("Equal", 22, 24))
sketch3.addConstraint(Sketcher.Constraint("Equal", 24, 26))
sketch3.addConstraint(Sketcher.Constraint("Equal", 26, 28))
sketch3.addConstraint(Sketcher.Constraint("Equal", 20, 29))
sketch3.addConstraint(Sketcher.Constraint("Equal", 28, 31))
sketch3.addConstraint(Sketcher.Constraint("Equal", 31, 33))
sketch3.addConstraint(Sketcher.Constraint("Equal", 33, 35))
sketch3.addConstraint(Sketcher.Constraint("Equal", 35, 37))
sketch3.addConstraint(Sketcher.Constraint("Equal", 37, 39))
sketch3.addConstraint(Sketcher.Constraint("Equal", 39, 41))
sketch3.addConstraint(Sketcher.Constraint("Equal", 41, 43))
sketch3.addConstraint(Sketcher.Constraint("Equal", 43, 45))
sketch3.addConstraint(Sketcher.Constraint("Equal", 29, 46))
sketch3.addConstraint(Sketcher.Constraint("Equal", 45, 48))
sketch3.addConstraint(Sketcher.Constraint("Equal", 48, 50))
sketch3.addConstraint(Sketcher.Constraint("Equal", 50, 52))
sketch3.addConstraint(Sketcher.Constraint("Equal", 52, 54))
sketch3.addConstraint(Sketcher.Constraint("Equal", 46, 55))
sketch3.addConstraint(Sketcher.Constraint("Symmetric", 3, 3, 11, 3, -1, 1))
sketch3.addConstraint(Sketcher.Constraint("Symmetric", 4, 3, 8, 3, -2))
sketch3.addConstraint(Sketcher.Constraint("Symmetric", 15, 3, 17, 3, -2))
sketch3.addConstraint(Sketcher.Constraint("Symmetric", 26, 3, 31, 3, -2))
sketch3.addConstraint(Sketcher.Constraint("Symmetric", 22, 3, 35, 3, -2))
sketch3.addConstraint(Sketcher.Constraint("Symmetric", 43, 3, 50, 3, -2))
sketch3.addConstraint(Sketcher.Constraint("Parallel", 0, 47))
sketch3.addConstraint(Sketcher.Constraint("Horizontal", 12, 3, 16, 3))
sketch3.addConstraint(Sketcher.Constraint("Horizontal", 41, 3, 52, 3))
sketch3.addConstraint(Sketcher.Constraint("Horizontal", 55, 3, 13, 2))
sketch3.addConstraint(Sketcher.Constraint("Vertical", 8, 3, 12, 3))
sketch3.addConstraint(Sketcher.Constraint("Vertical", 28, 3, 39, 3))
sketch3.addConstraint(Sketcher.Constraint("Vertical", 24, 3, 41, 3))
sketch3.addConstraint(Sketcher.Constraint("Vertical", 29, 3, 1, 1))
sketch3.addConstraint(Sketcher.Constraint("Equal", 34, 38))
sketch3.addConstraint(Sketcher.Constraint("Diameter", 20, Q("3 mm")))
sketch3.addConstraint(Sketcher.Constraint("Radius", 1, Q("1 mm")))
sketch3.addConstraint(Sketcher.Constraint("Radius", 3, Q("3 mm")))
sketch3.addConstraint(Sketcher.Constraint("DistanceX", 21, 2, 21, 1, Q("18.5 mm")))
sketch3.addConstraint(Sketcher.Constraint("DistanceY", -1, 1, 5, 3, Q("24 mm")))
sketch3.addConstraint(Sketcher.Constraint("DistanceX", -1, 1, 22, 3, Q("5 mm")))
sketch3.addConstraint(Sketcher.Constraint("DistanceY", -1, 1, 22, 3, Q("14 mm")))
sketch3.addConstraint(Sketcher.Constraint("DistanceX", 3, 2, -1, 1, Q("32 mm")))
sketch3.addConstraint(Sketcher.Constraint("DistanceY", 12, 1, -1, 1, Q("22 mm")))
sketch3.addConstraint(Sketcher.Constraint("DistanceY", 23, 2, 23, 1, Q("8.75 mm")))
sketch3.addConstraint(Sketcher.Constraint("DistanceY", 43, 3, -1, 1, Q("13.5 mm")))
sketch3.addConstraint(Sketcher.Constraint("Distance", 0, Q("21.00777 mm")))
sketch3.addConstraint(Sketcher.Constraint("DistanceX", 18, 2, 18, 1, Q("13.658005 mm")))
sketch3.addConstraint(Sketcher.Constraint("DistanceX", 49, 1, 49, 2, Q("10.421267 mm")))
pad3 = doc.addObject("PartDesign::Pad", "Pad002")
body2.addObject(pad3)
pad3.Profile = sketch3
pad3.Length = 8
pad3.Reversed = True

# Sketch on XY plane
sketch4 = doc.addObject("Sketcher::SketchObject", "Sketch003")
body2.addObject(sketch4)
sketch4.AttachmentSupport = (doc.getObject("XY_Plane001"), [""])
sketch4.MapMode = "FlatFace"
sketch4.addGeometry(Part.LineSegment(V(22.535645, 15.935462, 0), V(33.5, 15.935462, 0)), False)
sketch4.addGeometry(Part.LineSegment(V(33.5, 15.935462, 0), V(33.5, 22, 0)), False)
sketch4.addGeometry(Part.LineSegment(V(33.5, 22, 0), V(13.535903, 22, 0)), False)
sketch4.addGeometry(Part.ArcOfCircle(Part.Circle(V(13.535903, 18, 0), V(0, 0, 1), 4), math.radians(0), math.radians(90)), False)
sketch4.addGeometry(Part.ArcOfCircle(Part.Circle(V(22.535645, 23.021727, 0), V(0, 0, 1), 7.086265), math.radians(-134.874303), math.radians(-90)), False)
sketch4.addGeometry(Part.LineSegment(V(-18.110253, 19.097907, 0), V(-18.110253, 14, 0)), False)
sketch4.addGeometry(Part.LineSegment(V(-18.110253, 14, 0), V(15.535903, 14, 0)), False)
sketch4.addGeometry(Part.LineSegment(V(15.535903, 14, 0), V(15.535903, 17, 0)), False)
sketch4.addGeometry(Part.ArcOfCircle(Part.Circle(V(12.535903, 17, 0), V(0, 0, 1), 3), math.radians(0), math.radians(90)), False)
sketch4.addGeometry(Part.LineSegment(V(12.535903, 20, 0), V(-17.20816, 20, 0)), False)
sketch4.addGeometry(Part.ArcOfCircle(Part.Circle(V(-17.20816, 19.097907, 0), V(0, 0, 1), 0.902093), math.radians(90), math.radians(180)), False)
sketch4.addGeometry(Part.LineSegment(V(-33.5, 22, 0), V(-33.5, 15.935462, 0)), False)
sketch4.addGeometry(Part.LineSegment(V(-33.5, 15.935462, 0), V(-24.037879, 15.935462, 0)), False)
sketch4.addGeometry(Part.ArcOfCircle(Part.Circle(V(-24.037879, 20.035397, 0), V(0, 0, 1), 4.099936), math.radians(-90), math.radians(-16.670052)), False)
sketch4.addGeometry(Part.ArcOfCircle(Part.Circle(V(-16.203641, 18, 0), V(0, 0, 1), 4), math.radians(90), math.radians(167.594878)), False)
sketch4.addGeometry(Part.LineSegment(V(-16.203641, 22, 0), V(-33.5, 22, 0)), False)
sketch4.addConstraint(Sketcher.Constraint("Coincident", 0, 2, 1, 1))
sketch4.addConstraint(Sketcher.Constraint("Coincident", 1, 2, 2, 1))
sketch4.addConstraint(Sketcher.Constraint("Tangent", 2, 2, 3, 2))
sketch4.addConstraint(Sketcher.Constraint("Coincident", 3, 1, 4, 1))
sketch4.addConstraint(Sketcher.Constraint("Tangent", 4, 2, 0, 1))
sketch4.addConstraint(Sketcher.Constraint("Coincident", 5, 2, 6, 1))
sketch4.addConstraint(Sketcher.Constraint("Coincident", 6, 2, 7, 1))
sketch4.addConstraint(Sketcher.Constraint("Tangent", 7, 2, 8, 1))
sketch4.addConstraint(Sketcher.Constraint("Tangent", 8, 2, 9, 1))
sketch4.addConstraint(Sketcher.Constraint("Tangent", 9, 2, 10, 1))
sketch4.addConstraint(Sketcher.Constraint("Tangent", 10, 2, 5, 1))
sketch4.addConstraint(Sketcher.Constraint("Coincident", 11, 2, 12, 1))
sketch4.addConstraint(Sketcher.Constraint("Tangent", 12, 2, 13, 1))
sketch4.addConstraint(Sketcher.Constraint("Coincident", 13, 2, 14, 2))
sketch4.addConstraint(Sketcher.Constraint("Tangent", 14, 1, 15, 1))
sketch4.addConstraint(Sketcher.Constraint("Coincident", 15, 2, 11, 1))
sketch4.addConstraint(Sketcher.Constraint("Horizontal", 0))
sketch4.addConstraint(Sketcher.Constraint("Vertical", 1))
sketch4.addConstraint(Sketcher.Constraint("Horizontal", 2))
sketch4.addConstraint(Sketcher.Constraint("Vertical", 5))
sketch4.addConstraint(Sketcher.Constraint("Horizontal", 6))
sketch4.addConstraint(Sketcher.Constraint("Vertical", 7))
sketch4.addConstraint(Sketcher.Constraint("Horizontal", 9))
sketch4.addConstraint(Sketcher.Constraint("Vertical", 11))
sketch4.addConstraint(Sketcher.Constraint("Horizontal", 12))
sketch4.addConstraint(Sketcher.Constraint("Horizontal", 15))
sketch4.addConstraint(Sketcher.Constraint("Equal", 3, 14))
sketch4.addConstraint(Sketcher.Constraint("Symmetric", 0, 2, 11, 2, -2))
sketch4.addConstraint(Sketcher.Constraint("Horizontal", 3, 3, 14, 3))
sketch4.addConstraint(Sketcher.Constraint("Horizontal", 14, 3, 3, 1))
sketch4.addConstraint(Sketcher.Constraint("Radius", 3, Q("4 mm")))
sketch4.addConstraint(Sketcher.Constraint("Radius", 8, Q("3 mm")))
sketch4.addConstraint(Sketcher.Constraint("DistanceY", 7, 1, 7, 2, Q("3 mm")))
sketch4.addConstraint(Sketcher.Constraint("DistanceY", -1, 1, 3, 3, Q("18 mm")))
sketch4.addConstraint(Sketcher.Constraint("DistanceY", -1, 1, 8, 3, Q("17 mm")))
sketch4.addConstraint(Sketcher.Constraint("DistanceX", 8, 3, 3, 3, Q("1 mm")))
sketch4.addConstraint(Sketcher.Constraint("DistanceX", 13, 2, 10, 2, Q("2 mm")))
sketch4.addConstraint(Sketcher.Constraint("DistanceX", -1, 1, 0, 2, Q("33.5 mm")))
sketch4.addConstraint(Sketcher.Constraint("Radius", 4, Q("7.086265 mm")))
sketch4.addConstraint(Sketcher.Constraint("Radius", 10, Q("0.902093 mm")))
sketch4.addConstraint(Sketcher.Constraint("Radius", 13, Q("4.099936 mm")))
sketch4.addConstraint(Sketcher.Constraint("DistanceX", 12, 1, 12, 2, Q("9.462121 mm")))
sketch4.addConstraint(Sketcher.Constraint("DistanceX", 15, 2, 15, 1, Q("17.296359 mm")))
sketch4.addConstraint(Sketcher.Constraint("DistanceY", 1, 1, 1, 2, Q("6.064538 mm")))
sketch4.addConstraint(Sketcher.Constraint("DistanceX", 0, 1, 0, 2, Q("10.964355 mm")))
pocket1 = doc.addObject("PartDesign::Pocket", "Pocket")
body2.addObject(pocket1)
pocket1.Profile = sketch4
pocket1.Length = 50
pocket1.Midplane = True

doc.recompute()
